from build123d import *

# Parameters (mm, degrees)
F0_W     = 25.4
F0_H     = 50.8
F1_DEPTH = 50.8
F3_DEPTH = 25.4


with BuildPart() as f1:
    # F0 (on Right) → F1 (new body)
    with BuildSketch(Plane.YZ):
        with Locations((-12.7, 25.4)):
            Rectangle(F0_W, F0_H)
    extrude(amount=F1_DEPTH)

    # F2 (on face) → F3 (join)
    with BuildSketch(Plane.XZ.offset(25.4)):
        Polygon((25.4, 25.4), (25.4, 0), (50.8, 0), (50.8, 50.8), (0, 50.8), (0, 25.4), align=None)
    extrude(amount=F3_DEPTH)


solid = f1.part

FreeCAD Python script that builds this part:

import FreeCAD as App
import Part
import Sketcher

V = App.Vector
Q = App.Units.Quantity


def add_polygon(sketch, points):
    """Adds a closed chain of lines whose ends are joined by coincident constraints."""
    first, n = sketch.GeometryCount, len(points)
    for a, b in zip(points, points[1:] + points[:1]):
        sketch.addGeometry(Part.LineSegment(App.Vector(*a, 0), App.Vector(*b, 0)), False)
    for i in range(n):
        sketch.addConstraint(Sketcher.Constraint("Coincident", first + i, 2, first + (i + 1) % n, 1))

doc = App.newDocument("Part")
body = doc.addObject("PartDesign::Body", "Body")

# Sketch on YZ plane
sketch1 = body.newObject("Sketcher::SketchObject", "Sketch")
sketch1.AttachmentSupport = (doc.getObject("YZ_Plane"), [""])
sketch1.MapMode = "FlatFace"
add_polygon(sketch1, [(-25.4, 50.8), (-25.4, 0), (0, 0), (0, 50.8)])  # lines 0-3
sketch1.addConstraint(Sketcher.Constraint("Vertical", 0))
sketch1.addConstraint(Sketcher.Constraint("Horizontal", 1))
sketch1.addConstraint(Sketcher.Constraint("Vertical", 2))
sketch1.addConstraint(Sketcher.Constraint("Horizontal", 3))
sketch1.addConstraint(Sketcher.Constraint("Coincident", 1, 2, -1, 1))
sketch1.addConstraint(Sketcher.Constraint("DistanceX", 1, 1, 1, 2, Q("1 in")))
sketch1.addConstraint(Sketcher.Constraint("DistanceY", 0, 2, 0, 1, Q("2 in")))
pad1 = body.newObject("PartDesign::Pad", "Pad")
pad1.Profile = sketch1
pad1.Length = Q("2 in")

# Sketch on XZ plane
sketch2 = body.newObject("Sketcher::SketchObject", "Sketch001")
sketch2.AttachmentSupport = (doc.getObject("XZ_Plane"), [""])
sketch2.MapMode = "FlatFace"
sketch2.AttachmentOffset = App.Placement(V(0, 0, 1 * 25.4), App.Rotation())
add_polygon(sketch2, [(25.4, 25.4), (25.4, 0), (50.8, 0), (50.8, 50.8), (0, 50.8), (0, 25.4)])  # lines 0-5
sketch2.addConstraint(Sketcher.Constraint("Vertical", 0))
sketch2.addConstraint(Sketcher.Constraint("Horizontal", 1))
sketch2.addConstraint(Sketcher.Constraint("Vertical", 2))
sketch2.addConstraint(Sketcher.Constraint("Horizontal", 3))
sketch2.addConstraint(Sketcher.Constraint("Vertical", 4))
sketch2.addConstraint(Sketcher.Constraint("Horizontal", 5))
sketch2.addConstraint(Sketcher.Constraint("PointOnObject", 0, 2, -1))
sketch2.addConstraint(Sketcher.Constraint("PointOnObject", 3, 2, -2))
sketch2.addConstraint(Sketcher.Constraint("Equal", 1, 5))
sketch2.addConstraint(Sketcher.Constraint("Equal", 5, 0))
sketch2.addConstraint(Sketcher.Constraint("Equal", 3, 2))
sketch2.addConstraint(Sketcher.Constraint("DistanceX", 1, 1, 1, 2, Q("1 in")))
pad2 = body.newObject("PartDesign::Pad", "Pad001")
pad2.Profile = sketch2
pad2.Length = Q("1 in")

doc.recompute()
